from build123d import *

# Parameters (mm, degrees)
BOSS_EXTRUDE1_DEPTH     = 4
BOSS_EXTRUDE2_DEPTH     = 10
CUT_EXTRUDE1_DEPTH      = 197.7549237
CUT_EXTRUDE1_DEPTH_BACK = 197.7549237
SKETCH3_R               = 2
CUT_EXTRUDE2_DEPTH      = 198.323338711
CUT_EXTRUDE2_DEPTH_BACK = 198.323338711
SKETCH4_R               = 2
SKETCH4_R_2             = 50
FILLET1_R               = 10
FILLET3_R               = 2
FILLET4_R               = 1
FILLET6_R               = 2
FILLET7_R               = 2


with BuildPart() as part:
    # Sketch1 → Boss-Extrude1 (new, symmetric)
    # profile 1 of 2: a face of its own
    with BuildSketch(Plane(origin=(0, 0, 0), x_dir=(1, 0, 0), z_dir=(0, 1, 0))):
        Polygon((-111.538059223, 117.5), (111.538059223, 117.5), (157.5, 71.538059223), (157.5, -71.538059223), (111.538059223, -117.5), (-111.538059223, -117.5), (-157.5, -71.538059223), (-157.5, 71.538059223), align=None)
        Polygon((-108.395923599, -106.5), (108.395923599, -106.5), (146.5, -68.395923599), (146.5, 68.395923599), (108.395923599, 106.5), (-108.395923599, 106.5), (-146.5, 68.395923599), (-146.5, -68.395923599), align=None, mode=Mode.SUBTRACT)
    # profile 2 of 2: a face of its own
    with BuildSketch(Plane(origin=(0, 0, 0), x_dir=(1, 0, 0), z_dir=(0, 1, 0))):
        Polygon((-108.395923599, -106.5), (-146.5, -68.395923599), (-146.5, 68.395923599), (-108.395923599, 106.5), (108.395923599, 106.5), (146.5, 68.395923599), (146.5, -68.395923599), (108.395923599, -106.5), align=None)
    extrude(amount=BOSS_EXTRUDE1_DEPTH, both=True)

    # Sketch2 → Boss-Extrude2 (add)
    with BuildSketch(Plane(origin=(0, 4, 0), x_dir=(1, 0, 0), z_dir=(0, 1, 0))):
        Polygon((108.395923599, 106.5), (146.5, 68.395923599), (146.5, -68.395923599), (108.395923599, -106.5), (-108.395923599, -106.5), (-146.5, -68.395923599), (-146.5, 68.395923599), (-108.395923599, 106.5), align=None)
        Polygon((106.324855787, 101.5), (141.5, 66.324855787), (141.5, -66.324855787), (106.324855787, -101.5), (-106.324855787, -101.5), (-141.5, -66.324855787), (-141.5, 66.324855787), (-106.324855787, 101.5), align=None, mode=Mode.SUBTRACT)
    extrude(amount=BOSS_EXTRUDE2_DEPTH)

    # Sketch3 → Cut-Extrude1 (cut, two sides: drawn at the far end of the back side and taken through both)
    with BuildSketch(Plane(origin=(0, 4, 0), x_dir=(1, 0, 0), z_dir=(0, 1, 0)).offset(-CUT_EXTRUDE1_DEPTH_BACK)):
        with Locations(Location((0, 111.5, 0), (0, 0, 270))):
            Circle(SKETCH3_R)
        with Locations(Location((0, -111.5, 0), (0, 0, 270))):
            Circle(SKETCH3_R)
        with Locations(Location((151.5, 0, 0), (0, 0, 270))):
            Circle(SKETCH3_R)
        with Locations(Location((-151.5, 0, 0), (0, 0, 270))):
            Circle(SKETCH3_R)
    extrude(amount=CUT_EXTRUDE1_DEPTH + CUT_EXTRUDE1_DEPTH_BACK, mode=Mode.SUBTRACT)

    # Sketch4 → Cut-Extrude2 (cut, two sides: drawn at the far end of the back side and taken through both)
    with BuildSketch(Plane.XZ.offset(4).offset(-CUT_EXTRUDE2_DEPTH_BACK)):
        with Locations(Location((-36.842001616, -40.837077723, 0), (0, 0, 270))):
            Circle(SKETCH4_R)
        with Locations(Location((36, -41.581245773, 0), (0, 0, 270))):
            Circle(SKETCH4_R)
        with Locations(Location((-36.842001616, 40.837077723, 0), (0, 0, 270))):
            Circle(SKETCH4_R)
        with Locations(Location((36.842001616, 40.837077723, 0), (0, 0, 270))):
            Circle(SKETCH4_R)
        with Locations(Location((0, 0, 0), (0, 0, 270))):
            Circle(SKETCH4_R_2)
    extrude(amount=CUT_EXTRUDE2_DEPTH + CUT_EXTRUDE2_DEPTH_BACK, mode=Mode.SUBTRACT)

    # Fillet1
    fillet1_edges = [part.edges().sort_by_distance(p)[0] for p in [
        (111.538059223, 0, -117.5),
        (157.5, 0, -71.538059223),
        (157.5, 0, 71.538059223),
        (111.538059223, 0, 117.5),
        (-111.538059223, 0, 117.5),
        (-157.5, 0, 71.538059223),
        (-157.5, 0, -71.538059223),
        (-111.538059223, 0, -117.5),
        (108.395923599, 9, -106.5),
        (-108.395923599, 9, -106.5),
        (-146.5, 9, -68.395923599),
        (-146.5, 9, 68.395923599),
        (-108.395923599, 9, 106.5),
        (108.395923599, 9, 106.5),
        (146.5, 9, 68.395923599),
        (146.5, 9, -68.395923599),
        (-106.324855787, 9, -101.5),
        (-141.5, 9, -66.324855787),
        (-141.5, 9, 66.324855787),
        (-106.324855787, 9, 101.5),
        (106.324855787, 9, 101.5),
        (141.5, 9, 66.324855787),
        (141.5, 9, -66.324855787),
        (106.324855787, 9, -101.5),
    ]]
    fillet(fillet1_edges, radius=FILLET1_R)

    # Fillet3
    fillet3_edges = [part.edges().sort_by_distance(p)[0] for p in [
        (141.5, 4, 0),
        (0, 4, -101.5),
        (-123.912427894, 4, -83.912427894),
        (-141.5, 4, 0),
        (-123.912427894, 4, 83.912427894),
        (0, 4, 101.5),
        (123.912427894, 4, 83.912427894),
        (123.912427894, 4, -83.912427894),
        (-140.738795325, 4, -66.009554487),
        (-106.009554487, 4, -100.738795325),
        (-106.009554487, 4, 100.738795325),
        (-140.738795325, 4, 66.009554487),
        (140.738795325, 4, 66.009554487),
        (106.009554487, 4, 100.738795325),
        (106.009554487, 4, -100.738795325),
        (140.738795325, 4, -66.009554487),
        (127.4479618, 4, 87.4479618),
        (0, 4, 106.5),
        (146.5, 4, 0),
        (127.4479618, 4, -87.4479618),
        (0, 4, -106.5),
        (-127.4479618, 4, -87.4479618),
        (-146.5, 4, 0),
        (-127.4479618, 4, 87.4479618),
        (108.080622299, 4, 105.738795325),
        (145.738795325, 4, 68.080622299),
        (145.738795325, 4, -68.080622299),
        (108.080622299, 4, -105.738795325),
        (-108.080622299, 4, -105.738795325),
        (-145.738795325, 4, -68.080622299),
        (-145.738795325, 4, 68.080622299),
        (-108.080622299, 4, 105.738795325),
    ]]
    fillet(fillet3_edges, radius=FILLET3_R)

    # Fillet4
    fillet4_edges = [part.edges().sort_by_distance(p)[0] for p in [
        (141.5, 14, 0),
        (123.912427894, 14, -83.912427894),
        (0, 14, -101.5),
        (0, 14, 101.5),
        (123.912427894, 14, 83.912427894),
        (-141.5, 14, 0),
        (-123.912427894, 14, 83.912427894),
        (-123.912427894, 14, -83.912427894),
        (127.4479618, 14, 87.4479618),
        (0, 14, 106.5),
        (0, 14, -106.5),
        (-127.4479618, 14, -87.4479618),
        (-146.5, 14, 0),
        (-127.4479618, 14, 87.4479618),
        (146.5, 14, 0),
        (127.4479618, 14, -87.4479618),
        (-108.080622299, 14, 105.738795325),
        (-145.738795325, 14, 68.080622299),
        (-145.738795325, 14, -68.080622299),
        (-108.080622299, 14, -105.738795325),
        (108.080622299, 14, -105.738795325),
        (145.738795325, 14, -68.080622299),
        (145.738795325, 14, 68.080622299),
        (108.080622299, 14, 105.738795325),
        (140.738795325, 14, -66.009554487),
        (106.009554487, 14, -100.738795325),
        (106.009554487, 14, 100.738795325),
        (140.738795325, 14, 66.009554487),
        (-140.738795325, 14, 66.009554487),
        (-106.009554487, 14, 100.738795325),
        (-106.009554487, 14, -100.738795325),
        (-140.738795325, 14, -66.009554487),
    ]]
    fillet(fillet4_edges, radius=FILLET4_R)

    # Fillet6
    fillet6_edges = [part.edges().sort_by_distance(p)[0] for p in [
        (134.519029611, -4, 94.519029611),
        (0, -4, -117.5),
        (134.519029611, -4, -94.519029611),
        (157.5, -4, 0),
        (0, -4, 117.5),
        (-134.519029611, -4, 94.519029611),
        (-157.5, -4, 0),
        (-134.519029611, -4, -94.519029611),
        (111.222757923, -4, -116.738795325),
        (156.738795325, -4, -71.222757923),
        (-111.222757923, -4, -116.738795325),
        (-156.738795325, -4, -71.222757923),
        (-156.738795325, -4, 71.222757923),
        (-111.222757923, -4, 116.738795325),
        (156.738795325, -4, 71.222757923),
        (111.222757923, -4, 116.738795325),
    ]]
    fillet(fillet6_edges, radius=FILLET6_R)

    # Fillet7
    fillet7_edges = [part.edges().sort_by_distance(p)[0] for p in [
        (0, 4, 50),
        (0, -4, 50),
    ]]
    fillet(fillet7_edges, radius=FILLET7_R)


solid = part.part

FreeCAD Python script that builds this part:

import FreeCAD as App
import Part
import Sketcher
from FreeCAD import Vector
Q = App.Units.Quantity


def edges_at(feature, points):
    """Names of the edges that pass closest to the given points."""
    edges = feature.Shape.Edges
    near = lambda p: min(range(len(edges)), key=lambda i: edges[i].distToShape(Part.Vertex(*p))[0])
    return sorted({f"Edge{near(p) + 1}" for p in points})


def add_polygon(sketch, points):
    """Adds a closed chain of lines whose ends are joined by coincident constraints."""
    first, n = sketch.GeometryCount, len(points)
    for a, b in zip(points, points[1:] + points[:1]):
        sketch.addGeometry(Part.LineSegment(App.Vector(*a, 0), App.Vector(*b, 0)), False)
    for i in range(n):
        sketch.addConstraint(Sketcher.Constraint("Coincident", first + i, 2, first + (i + 1) % n, 1))

doc = App.newDocument("Part")
params = doc.addObject("Spreadsheet::Sheet", "Params")
for row, (alias, value) in enumerate([
    ("sketch1_length", "65 mm"),
    ("pad1_length", "8 mm"),
    ("pad2_length", "10 mm"),
    ("sketch3_diameter", "4 mm"),
    ("sketch4_diameter", "4 mm"),
    ("sketch4_diameter2", "100 mm"),
    ("fillet_radius", "10 mm"),
    ("fillet2_radius", "2 mm"),
    ("fillet3_radius", "1 mm"),
    ("fillet4_radius", "2 mm"),
    ("fillet5_radius", "2 mm"),
], start=1):
    params.set(f"A{row}", alias)
    params.set(f"B{row}", "=" + value)
    params.setAlias(f"B{row}", alias)

body = doc.addObject("PartDesign::Body", "Body")

# Sketch on XZ plane
sketch1 = doc.addObject("Sketcher::SketchObject", "Sketch")
body.addObject(sketch1)
sketch1.AttachmentSupport = (doc.XZ_Plane, [""])
sketch1.MapMode = "FlatFace"
add_polygon(sketch1, [(112, -118), (-112, -118), (-158, -72), (-158, 72), (-112, 118), (112, 118), (158, 72), (158, -72)])  # lines 0-7
sketch1.addConstraint([
    Sketcher.Constraint("Horizontal", 0),
    Sketcher.Constraint("Vertical", 2),
    Sketcher.Constraint("Horizontal", 4),
    Sketcher.Constraint("Vertical", 6),
    Sketcher.Constraint("Symmetric", 0, 2, 4, 2, -1, 1),
    Sketcher.Constraint("Symmetric", 1, 2, 5, 2, -1, 1),
    Sketcher.Constraint("Perpendicular", 1, 3),
    Sketcher.Constraint("Perpendicular", 5, 7),
    Sketcher.Constraint("Horizontal", 2, 2, 5, 2),
    Sketcher.Constraint("Horizontal", 1, 2, 6, 2),
    Sketcher.Constraint("Vertical", 0, 2, 3, 2),
    Sketcher.Constraint("Distance", 1, Q("65 mm")),
    Sketcher.Constraint("DistanceY", 0, 2, 3, 2, Q("235 mm")),
    Sketcher.Constraint("DistanceX", 2, 2, 5, 2, Q("315 mm")),
])
sketch1.setExpression("Constraints[19]", "Params.sketch1_length")
pad1 = doc.addObject("PartDesign::Pad", "Pad")
body.addObject(pad1)
pad1.Profile = sketch1
pad1.setExpression("Length", "Params.pad1_length")
pad1.Midplane = True

# Sketch on XZ plane
sketch2 = doc.addObject("Sketcher::SketchObject", "Sketch001")
body.addObject(sketch2)
sketch2.AttachmentSupport = (doc.XZ_Plane, [""])
sketch2.MapMode = "FlatFace"
sketch2.AttachmentOffset = App.Placement(Vector(0, 0, -4), App.Rotation())
add_polygon(sketch2, [(146, -68), (108, -106), (-108, -106), (-146, -68), (-146, 68), (-108, 106), (108, 106), (146, 68)])  # lines 0-7
add_polygon(sketch2, [(106, -102), (142, -66), (142, 66), (106, 102), (-106, 102), (-142, 66), (-142, -66), (-106, -102)])  # lines 8-15
sketch2.addConstraint([
    Sketcher.Constraint("Horizontal", 1),
    Sketcher.Constraint("Vertical", 3),
    Sketcher.Constraint("Horizontal", 5),
    Sketcher.Constraint("Vertical", 7),
    Sketcher.Constraint("Vertical", 9),
    Sketcher.Constraint("Horizontal", 11),
    Sketcher.Constraint("Vertical", 13),
    Sketcher.Constraint("Horizontal", 15),
    Sketcher.Constraint("Symmetric", 0, 2, 4, 2, -1, 1),
    Sketcher.Constraint("Symmetric", 2, 2, 6, 2, -1, 1),
    Sketcher.Constraint("Symmetric", 8, 2, 12, 2, -1, 1),
    Sketcher.Constraint("Symmetric", 10, 2, 14, 2, -1, 1),
    Sketcher.Constraint("Perpendicular", 0, 2),
    Sketcher.Constraint("Perpendicular", 2, 4),
    Sketcher.Constraint("Perpendicular", 4, 6),
    Sketcher.Constraint("Perpendicular", 6, 8),
    Sketcher.Constraint("Perpendicular", 8, 10),
    Sketcher.Constraint("Perpendicular", 10, 12),
    Sketcher.Constraint("Perpendicular", 12, 14),
    Sketcher.Constraint("Horizontal", 3, 2, 6, 2),
    Sketcher.Constraint("Horizontal", 9, 2, 12, 2),
    Sketcher.Constraint("Vertical", 1, 2, 4, 2),
    Sketcher.Constraint("DistanceY", 1, 2, 4, 2, Q("213 mm")),
    Sketcher.Constraint("DistanceX", 3, 2, 6, 2, Q("293 mm")),
    Sketcher.Constraint("DistanceX", 8, 2, 7, 2, Q("5 mm")),
    Sketcher.Constraint("DistanceY", 10, 2, 5, 2, Q("5 mm")),
    Sketcher.Constraint("Distance", 0, Q("53.887302 mm")),
    Sketcher.Constraint("DistanceX", 11, 2, 11, 1, Q("212.649712 mm")),
])
pad2 = doc.addObject("PartDesign::Pad", "Pad001")
body.addObject(pad2)
pad2.Profile = sketch2
pad2.setExpression("Length", "Params.pad2_length")
pad2.Reversed = True

# Sketch on XZ plane
sketch3 = doc.addObject("Sketcher::SketchObject", "Sketch002")
body.addObject(sketch3)
sketch3.AttachmentSupport = (doc.XZ_Plane, [""])
sketch3.MapMode = "FlatFace"
sketch3.AttachmentOffset = App.Placement(Vector(0, 0, -4), App.Rotation())
sketch3.addGeometry([
    Part.Circle(Vector(0, -111.5, 0), Vector(0, 0, 1), 2),
    Part.Circle(Vector(0, 111.5, 0), Vector(0, 0, 1), 2),
    Part.Circle(Vector(151.5, 0, 0), Vector(0, 0, 1), 2),
    Part.Circle(Vector(-151.5, 0, 0), Vector(0, 0, 1), 2),
], False)
sketch3.addConstraint([
    Sketcher.Constraint("Equal", 0, 1),
    Sketcher.Constraint("Equal", 1, 2),
    Sketcher.Constraint("Equal", 2, 3),
    Sketcher.Constraint("Symmetric", 0, 3, 1, 3, -1, 1),
    Sketcher.Constraint("Symmetric", 2, 3, 3, 3, -1, 1),
    Sketcher.Constraint("PointOnObject", 0, 3, -2),
    Sketcher.Constraint("PointOnObject", 2, 3, -1),
    Sketcher.Constraint("Diameter", 0, Q("4 mm")),
    Sketcher.Constraint("DistanceY", 0, 3, 1, 3, Q("223 mm")),
    Sketcher.Constraint("DistanceX", 3, 3, 2, 3, Q("303 mm")),
])
sketch3.setExpression("Constraints[7]", "Params.sketch3_diameter")
pocket1 = doc.addObject("PartDesign::Pocket", "Pocket")
body.addObject(pocket1)
pocket1.Profile = sketch3
pocket1.Type = "ThroughAll"
pocket1.Midplane = True

# Sketch on XZ plane
sketch4 = doc.addObject("Sketcher::SketchObject", "Sketch003")
body.addObject(sketch4)
sketch4.AttachmentSupport = (doc.XZ_Plane, [""])
sketch4.MapMode = "FlatFace"
sketch4.AttachmentOffset = App.Placement(Vector(0, 0, 4), App.Rotation())
sketch4.addGeometry([
    Part.Circle(Vector(-36.8, -40.8, 0), Vector(0, 0, 1), 2),  # 0
    Part.Circle(Vector(36, -41.6, 0), Vector(0, 0, 1), 2),  # 1
    Part.Circle(Vector(-36.8, 40.8, 0), Vector(0, 0, 1), 2),  # 2
    Part.Circle(Vector(36.8, 40.8, 0), Vector(0, 0, 1), 2),  # 3
    Part.Circle(Vector(0, 0, 0), Vector(0, 0, 1), 50),  # 4
], False)
sketch4.addConstraint([
    Sketcher.Constraint("Coincident", 4, 3, -1, 1),
    Sketcher.Constraint("Equal", 0, 1),
    Sketcher.Constraint("Equal", 1, 2),
    Sketcher.Constraint("Equal", 2, 3),
    Sketcher.Constraint("Symmetric", 0, 3, 3, 3, -1, 1),
    Sketcher.Constraint("Symmetric", 2, 3, 3, 3, -2),
    Sketcher.Constraint("Diameter", 0, Q("4 mm")),
    Sketcher.Constraint("Diameter", 4, Q("100 mm")),
    Sketcher.Constraint("DistanceX", -1, 1, 1, 3, Q("36 mm")),
    Sketcher.Constraint("DistanceX", 0, 3, -1, 1, Q("36.842002 mm")),
    Sketcher.Constraint("DistanceY", 1, 3, 0, 3, Q("0.744168 mm")),
    Sketcher.Constraint("DistanceY", 0, 3, -1, 1, Q("40.837078 mm")),
])
sketch4.setExpression("Constraints[6]", "Params.sketch4_diameter")
sketch4.setExpression("Constraints[7]", "Params.sketch4_diameter2")
pocket2 = doc.addObject("PartDesign::Pocket", "Pocket001")
body.addObject(pocket2)
pocket2.Profile = sketch4
pocket2.Type = "ThroughAll"
pocket2.Midplane = True
doc.recompute()

fillet = doc.addObject("PartDesign::Fillet", "Fillet")
body.addObject(fillet)
fillet.Base = (pocket2, edges_at(pocket2, [
    (111.538, 0, -117.5),
    (157.5, 0, -71.538),
    (157.5, 0, 71.538),
    (111.538, 0, 117.5),
    (-111.538, 0, 117.5),
    (-157.5, 0, 71.538),
    (-157.5, 0, -71.538),
    (-111.538, 0, -117.5),
    (108.396, 9, -106.5),
    (-108.396, 9, -106.5),
    (-146.5, 9, -68.396),
    (-146.5, 9, 68.396),
    (-108.396, 9, 106.5),
    (108.396, 9, 106.5),
    (146.5, 9, 68.396),
    (146.5, 9, -68.396),
    (-106.325, 9, -101.5),
    (-141.5, 9, -66.325),
    (-141.5, 9, 66.325),
    (-106.325, 9, 101.5),
    (106.325, 9, 101.5),
    (141.5, 9, 66.325),
    (141.5, 9, -66.325),
    (106.325, 9, -101.5),
]))
fillet.setExpression("Radius", "Params.fillet_radius")
doc.recompute()

fillet2 = doc.addObject("PartDesign::Fillet", "Fillet001")
body.addObject(fillet2)
fillet2.Base = (fillet, edges_at(fillet, [
    (141.5, 4, 0),
    (0, 4, -101.5),
    (-123.912, 4, -83.912),
    (-141.5, 4, 0),
    (-123.912, 4, 83.912),
    (0, 4, 101.5),
    (123.912, 4, 83.912),
    (123.912, 4, -83.912),
    (-140.739, 4, -66.01),
    (-106.01, 4, -100.739),
    (-106.01, 4, 100.739),
    (-140.739, 4, 66.01),
    (140.739, 4, 66.01),
    (106.01, 4, 100.739),
    (106.01, 4, -100.739),
    (140.739, 4, -66.01),
    (127.448, 4, 87.448),
    (0, 4, 106.5),
    (146.5, 4, 0),
    (127.448, 4, -87.448),
    (0, 4, -106.5),
    (-127.448, 4, -87.448),
    (-146.5, 4, 0),
    (-127.448, 4, 87.448),
    (108.081, 4, 105.739),
    (145.739, 4, 68.081),
    (145.739, 4, -68.081),
    (108.081, 4, -105.739),
    (-108.081, 4, -105.739),
    (-145.739, 4, -68.081),
    (-145.739, 4, 68.081),
    (-108.081, 4, 105.739),
]))
fillet2.setExpression("Radius", "Params.fillet2_radius")
doc.recompute()

fillet3 = doc.addObject("PartDesign::Fillet", "Fillet002")
body.addObject(fillet3)
fillet3.Base = (fillet2, edges_at(fillet2, [
    (141.5, 14, 0),
    (123.912, 14, -83.912),
    (0, 14, -101.5),
    (0, 14, 101.5),
    (123.912, 14, 83.912),
    (-141.5, 14, 0),
    (-123.912, 14, 83.912),
    (-123.912, 14, -83.912),
    (127.448, 14, 87.448),
    (0, 14, 106.5),
    (0, 14, -106.5),
    (-127.448, 14, -87.448),
    (-146.5, 14, 0),
    (-127.448, 14, 87.448),
    (146.5, 14, 0),
    (127.448, 14, -87.448),
    (-108.081, 14, 105.739),
    (-145.739, 14, 68.081),
    (-145.739, 14, -68.081),
    (-108.081, 14, -105.739),
    (108.081, 14, -105.739),
    (145.739, 14, -68.081),
    (145.739, 14, 68.081),
    (108.081, 14, 105.739),
    (140.739, 14, -66.01),
    (106.01, 14, -100.739),
    (106.01, 14, 100.739),
    (140.739, 14, 66.01),
    (-140.739, 14, 66.01),
    (-106.01, 14, 100.739),
    (-106.01, 14, -100.739),
    (-140.739, 14, -66.01),
]))
fillet3.setExpression("Radius", "Params.fillet3_radius")
doc.recompute()

fillet4 = doc.addObject("PartDesign::Fillet", "Fillet003")
body.addObject(fillet4)
fillet4.Base = (fillet3, edges_at(fillet3, [
    (134.519, -4, 94.519),
    (0, -4, -117.5),
    (134.519, -4, -94.519),
    (157.5, -4, 0),
    (0, -4, 117.5),
    (-134.519, -4, 94.519),
    (-157.5, -4, 0),
    (-134.519, -4, -94.519),
    (111.223, -4, -116.739),
    (156.739, -4, -71.223),
    (-111.223, -4, -116.739),
    (-156.739, -4, -71.223),
    (-156.739, -4, 71.223),
    (-111.223, -4, 116.739),
    (156.739, -4, 71.223),
    (111.223, -4, 116.739),
]))
fillet4.setExpression("Radius", "Params.fillet4_radius")
doc.recompute()

fillet5 = doc.addObject("PartDesign::Fillet", "Fillet004")
body.addObject(fillet5)
fillet5.Base = (fillet4, edges_at(fillet4, [(0, 4, 50), (0, -4, 50)]))
fillet5.setExpression("Radius", "Params.fillet5_radius")

doc.recompute()
